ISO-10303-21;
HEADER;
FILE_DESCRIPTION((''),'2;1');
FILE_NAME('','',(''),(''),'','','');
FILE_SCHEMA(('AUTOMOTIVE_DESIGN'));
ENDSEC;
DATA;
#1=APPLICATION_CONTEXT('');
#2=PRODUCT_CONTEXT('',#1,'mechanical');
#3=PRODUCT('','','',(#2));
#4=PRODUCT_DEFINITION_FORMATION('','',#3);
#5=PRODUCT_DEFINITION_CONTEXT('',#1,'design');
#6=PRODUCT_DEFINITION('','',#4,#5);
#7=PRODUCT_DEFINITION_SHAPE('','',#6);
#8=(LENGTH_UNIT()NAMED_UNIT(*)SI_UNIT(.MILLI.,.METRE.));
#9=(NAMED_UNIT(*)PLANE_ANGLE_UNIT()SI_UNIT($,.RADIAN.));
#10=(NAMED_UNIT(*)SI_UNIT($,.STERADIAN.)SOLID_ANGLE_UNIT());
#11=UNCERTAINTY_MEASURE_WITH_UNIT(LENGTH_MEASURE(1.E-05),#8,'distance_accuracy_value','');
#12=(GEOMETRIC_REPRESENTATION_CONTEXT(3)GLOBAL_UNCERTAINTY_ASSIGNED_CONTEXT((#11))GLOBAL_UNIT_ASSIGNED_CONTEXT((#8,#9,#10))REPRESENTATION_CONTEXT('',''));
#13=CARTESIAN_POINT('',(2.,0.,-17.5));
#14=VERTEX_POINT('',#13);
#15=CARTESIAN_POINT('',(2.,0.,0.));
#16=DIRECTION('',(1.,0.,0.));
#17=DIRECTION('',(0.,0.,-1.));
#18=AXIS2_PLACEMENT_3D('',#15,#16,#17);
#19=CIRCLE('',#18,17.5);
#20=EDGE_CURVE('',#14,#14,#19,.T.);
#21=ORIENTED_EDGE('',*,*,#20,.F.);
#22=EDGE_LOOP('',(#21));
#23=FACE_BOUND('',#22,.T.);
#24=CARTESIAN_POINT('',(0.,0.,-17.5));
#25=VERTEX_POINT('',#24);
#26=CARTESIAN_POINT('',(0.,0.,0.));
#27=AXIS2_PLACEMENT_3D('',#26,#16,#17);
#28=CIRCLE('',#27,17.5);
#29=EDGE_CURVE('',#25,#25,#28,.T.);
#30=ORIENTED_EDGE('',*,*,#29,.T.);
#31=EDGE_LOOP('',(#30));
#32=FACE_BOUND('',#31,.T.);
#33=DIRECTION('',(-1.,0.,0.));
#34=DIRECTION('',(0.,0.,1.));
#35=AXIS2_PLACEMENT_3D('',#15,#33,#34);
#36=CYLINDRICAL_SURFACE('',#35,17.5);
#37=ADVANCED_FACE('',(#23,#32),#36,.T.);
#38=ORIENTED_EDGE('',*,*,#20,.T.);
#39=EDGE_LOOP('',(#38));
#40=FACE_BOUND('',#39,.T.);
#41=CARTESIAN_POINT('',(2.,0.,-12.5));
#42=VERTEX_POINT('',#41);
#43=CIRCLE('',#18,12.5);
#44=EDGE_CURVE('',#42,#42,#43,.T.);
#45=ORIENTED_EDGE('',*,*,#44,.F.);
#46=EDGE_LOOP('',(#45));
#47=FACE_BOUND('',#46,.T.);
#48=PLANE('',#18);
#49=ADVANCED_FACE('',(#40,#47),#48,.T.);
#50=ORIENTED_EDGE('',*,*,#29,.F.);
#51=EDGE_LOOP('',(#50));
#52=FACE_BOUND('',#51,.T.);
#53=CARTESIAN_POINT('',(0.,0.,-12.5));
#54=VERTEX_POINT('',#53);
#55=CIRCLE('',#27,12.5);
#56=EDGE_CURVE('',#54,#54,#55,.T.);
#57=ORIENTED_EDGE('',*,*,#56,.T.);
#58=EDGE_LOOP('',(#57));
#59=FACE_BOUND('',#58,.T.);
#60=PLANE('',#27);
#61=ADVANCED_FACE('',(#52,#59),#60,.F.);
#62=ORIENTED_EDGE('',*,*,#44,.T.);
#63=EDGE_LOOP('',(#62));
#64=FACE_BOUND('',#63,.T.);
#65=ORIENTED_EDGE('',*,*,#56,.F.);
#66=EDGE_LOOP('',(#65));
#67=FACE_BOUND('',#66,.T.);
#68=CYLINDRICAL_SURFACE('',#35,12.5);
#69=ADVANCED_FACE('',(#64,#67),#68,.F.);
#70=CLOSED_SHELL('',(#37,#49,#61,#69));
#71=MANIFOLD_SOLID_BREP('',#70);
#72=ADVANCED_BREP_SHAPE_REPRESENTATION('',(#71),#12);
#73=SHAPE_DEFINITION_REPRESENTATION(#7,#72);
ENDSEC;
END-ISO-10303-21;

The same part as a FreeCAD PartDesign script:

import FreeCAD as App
import Part
import Sketcher
Q = App.Units.Quantity

doc = App.newDocument("Part")
body = doc.addObject("PartDesign::Body", "Body")

# Sketch on YZ plane
sketch1 = body.newObject("Sketcher::SketchObject", "Sketch")
sketch1.AttachmentSupport = (doc.getObject("YZ_Plane"), [""])
sketch1.MapMode = "FlatFace"
sketch1.addGeometry(Part.Circle(App.Vector(0, 0, 0), App.Vector(0, 0, 1), 18), False)
sketch1.addGeometry(Part.Circle(App.Vector(0, 0, 0), App.Vector(0, 0, 1), 12), False)
sketch1.addConstraint(Sketcher.Constraint("Coincident", 0, 3, -1, 1))
sketch1.addConstraint(Sketcher.Constraint("Coincident", 1, 3, -1, 1))
sketch1.addConstraint(Sketcher.Constraint("Diameter", 0, Q("35 mm")))
sketch1.addConstraint(Sketcher.Constraint("Diameter", 1, Q("25 mm")))
pad1 = body.newObject("PartDesign::Pad", "Pad")
pad1.Profile = sketch1
pad1.Length = 2

doc.recompute()
